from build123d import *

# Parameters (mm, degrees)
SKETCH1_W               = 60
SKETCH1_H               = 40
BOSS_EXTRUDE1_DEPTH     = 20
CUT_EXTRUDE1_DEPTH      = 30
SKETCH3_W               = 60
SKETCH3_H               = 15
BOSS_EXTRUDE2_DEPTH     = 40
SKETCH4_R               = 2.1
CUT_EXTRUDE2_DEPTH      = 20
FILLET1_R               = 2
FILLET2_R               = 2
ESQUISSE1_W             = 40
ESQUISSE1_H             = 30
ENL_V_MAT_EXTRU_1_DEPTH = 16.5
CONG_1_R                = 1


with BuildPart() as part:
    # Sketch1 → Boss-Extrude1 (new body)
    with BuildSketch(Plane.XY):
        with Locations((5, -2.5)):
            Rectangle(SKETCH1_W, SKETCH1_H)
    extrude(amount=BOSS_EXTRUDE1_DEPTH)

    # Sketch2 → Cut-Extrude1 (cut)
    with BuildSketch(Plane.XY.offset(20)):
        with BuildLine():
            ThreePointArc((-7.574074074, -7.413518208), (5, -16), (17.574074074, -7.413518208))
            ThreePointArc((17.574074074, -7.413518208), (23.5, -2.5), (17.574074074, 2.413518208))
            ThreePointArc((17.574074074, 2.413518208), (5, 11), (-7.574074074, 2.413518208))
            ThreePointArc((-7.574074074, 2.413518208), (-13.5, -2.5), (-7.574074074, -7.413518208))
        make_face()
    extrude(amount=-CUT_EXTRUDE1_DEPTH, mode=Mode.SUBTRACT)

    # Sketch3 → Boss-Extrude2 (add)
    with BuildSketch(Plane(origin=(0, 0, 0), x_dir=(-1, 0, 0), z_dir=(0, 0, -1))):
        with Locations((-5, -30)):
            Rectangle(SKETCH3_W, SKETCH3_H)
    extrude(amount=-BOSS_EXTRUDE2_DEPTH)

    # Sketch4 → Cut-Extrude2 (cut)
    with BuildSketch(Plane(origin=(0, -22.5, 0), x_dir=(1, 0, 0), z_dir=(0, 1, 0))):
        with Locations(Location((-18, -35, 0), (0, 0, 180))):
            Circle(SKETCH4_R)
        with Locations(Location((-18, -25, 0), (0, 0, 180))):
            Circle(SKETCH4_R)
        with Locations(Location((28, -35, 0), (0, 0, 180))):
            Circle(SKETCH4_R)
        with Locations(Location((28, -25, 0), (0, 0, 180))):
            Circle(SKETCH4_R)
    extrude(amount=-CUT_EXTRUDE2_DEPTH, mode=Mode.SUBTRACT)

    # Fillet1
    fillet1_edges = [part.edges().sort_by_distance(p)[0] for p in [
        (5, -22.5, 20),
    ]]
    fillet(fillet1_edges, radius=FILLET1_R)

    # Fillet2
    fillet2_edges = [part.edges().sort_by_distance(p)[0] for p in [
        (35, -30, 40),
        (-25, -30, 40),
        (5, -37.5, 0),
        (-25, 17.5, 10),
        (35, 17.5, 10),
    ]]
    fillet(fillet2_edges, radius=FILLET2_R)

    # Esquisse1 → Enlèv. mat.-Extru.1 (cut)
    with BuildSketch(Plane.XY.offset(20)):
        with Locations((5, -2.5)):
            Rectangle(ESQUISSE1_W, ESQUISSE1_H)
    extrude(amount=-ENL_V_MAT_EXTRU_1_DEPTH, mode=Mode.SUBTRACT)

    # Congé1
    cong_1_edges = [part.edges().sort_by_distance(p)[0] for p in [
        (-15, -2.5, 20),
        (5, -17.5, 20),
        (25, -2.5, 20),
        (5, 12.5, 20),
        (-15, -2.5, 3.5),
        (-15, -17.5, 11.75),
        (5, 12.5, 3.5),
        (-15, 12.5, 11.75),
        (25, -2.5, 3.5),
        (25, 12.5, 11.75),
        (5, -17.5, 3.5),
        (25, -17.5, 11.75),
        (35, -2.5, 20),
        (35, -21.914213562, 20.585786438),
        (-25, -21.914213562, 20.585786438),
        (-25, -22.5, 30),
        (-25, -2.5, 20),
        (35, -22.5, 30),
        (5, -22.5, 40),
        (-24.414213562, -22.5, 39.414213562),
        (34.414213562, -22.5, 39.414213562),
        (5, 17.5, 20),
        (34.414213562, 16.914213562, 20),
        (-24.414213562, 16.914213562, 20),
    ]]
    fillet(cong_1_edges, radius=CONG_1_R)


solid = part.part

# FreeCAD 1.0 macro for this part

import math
import FreeCAD as App
import Part
import Sketcher


def edges_at(feature, points):
    """Names of the edges that pass closest to the given points."""
    edges = feature.Shape.Edges
    near = lambda p: min(range(len(edges)), key=lambda i: edges[i].distToShape(Part.Vertex(*p))[0])
    return sorted({f"Edge{near(p) + 1}" for p in points})

doc = App.newDocument("Part")
body = doc.addObject("PartDesign::Body", "Body")

sketch1 = doc.addObject("Sketcher::SketchObject", "Sketch")
body.addObject(sketch1)
sketch1.AttachmentSupport = (doc.XY_Plane, [""])
sketch1.MapMode = "FlatFace"
sketch1.addGeometry([
    Part.LineSegment(App.Vector(-25, 18, 0), App.Vector(-25, -22, 0)),
    Part.LineSegment(App.Vector(-25, -22, 0), App.Vector(35, -22, 0)),
    Part.LineSegment(App.Vector(35, -22, 0), App.Vector(35, 18, 0)),
    Part.LineSegment(App.Vector(35, 18, 0), App.Vector(-25, 18, 0)),
], False)
sketch1.addConstraint([
    Sketcher.Constraint("Coincident", 0, 2, 1, 1),
    Sketcher.Constraint("Coincident", 1, 2, 2, 1),
    Sketcher.Constraint("Coincident", 2, 2, 3, 1),
    Sketcher.Constraint("Coincident", 3, 2, 0, 1),
    Sketcher.Constraint("Vertical", 0),
    Sketcher.Constraint("Horizontal", 1),
    Sketcher.Constraint("Vertical", 2),
    Sketcher.Constraint("Horizontal", 3),
    Sketcher.Constraint("DistanceX", 1, 1, 1, 2, 60.0),
    Sketcher.Constraint("DistanceY", 0, 2, 0, 1, 40.0),
    Sketcher.Constraint("DistanceX", 0, 2, -1, 1, 25.0),
    Sketcher.Constraint("DistanceY", 0, 2, -1, 1, 22.5),
])
pad1 = doc.addObject("PartDesign::Pad", "Pad")
body.addObject(pad1)
pad1.Profile = sketch1
pad1.Length = 20

sketch2 = doc.addObject("Sketcher::SketchObject", "Sketch001")
body.addObject(sketch2)
sketch2.AttachmentSupport = (doc.XY_Plane, [""])
sketch2.MapMode = "FlatFace"
sketch2.AttachmentOffset = App.Placement(App.Vector(0, 0, 20), App.Rotation())
sketch2.addGeometry([
    Part.ArcOfCircle(Part.Circle(App.Vector(5, -2, 0), App.Vector(0, 0, 1), 14), math.radians(-159), math.radians(-21)),
    Part.ArcOfCircle(Part.Circle(App.Vector(18, -2, 0), App.Vector(0, 0, 1), 5), math.radians(-101), math.radians(101)),
    Part.ArcOfCircle(Part.Circle(App.Vector(5, -2, 0), App.Vector(0, 0, 1), 14), math.radians(21), math.radians(159)),
    Part.ArcOfCircle(Part.Circle(App.Vector(-8, -2, 0), App.Vector(0, 0, 1), 5), math.radians(79), math.radians(281)),
], False)
sketch2.addConstraint([
    Sketcher.Constraint("Coincident", 0, 2, 1, 1),
    Sketcher.Constraint("Coincident", 1, 2, 2, 1),
    Sketcher.Constraint("Coincident", 2, 2, 3, 1),
    Sketcher.Constraint("Coincident", 3, 2, 0, 1),
    Sketcher.Constraint("Coincident", 2, 3, 0, 3),
    Sketcher.Constraint("Equal", 0, 2),
    Sketcher.Constraint("Equal", 1, 3),
    Sketcher.Constraint("Horizontal", 0, 3, 1, 3),
    Sketcher.Constraint("Horizontal", 2, 3, 3, 3),
    Sketcher.Constraint("Horizontal", 1, 2, 2, 2),
    Sketcher.Constraint("Radius", 1, 5.0),
    Sketcher.Constraint("Radius", 0, 13.5),
    Sketcher.Constraint("DistanceX", -1, 1, 0, 3, 5.0),
    Sketcher.Constraint("DistanceX", 3, 3, 1, 3, 27.0),
    Sketcher.Constraint("DistanceY", 0, 3, -1, 1, 2.5),
])
pocket1 = doc.addObject("PartDesign::Pocket", "Pocket")
body.addObject(pocket1)
pocket1.Profile = sketch2
pocket1.Length = 30

sketch3 = doc.addObject("Sketcher::SketchObject", "Sketch002")
body.addObject(sketch3)
sketch3.AttachmentSupport = (doc.XY_Plane, [""])
sketch3.MapMode = "FlatFace"
sketch3.addGeometry([
    Part.LineSegment(App.Vector(35, -22, 0), App.Vector(35, -38, 0)),
    Part.LineSegment(App.Vector(35, -38, 0), App.Vector(-25, -38, 0)),
    Part.LineSegment(App.Vector(-25, -38, 0), App.Vector(-25, -22, 0)),
    Part.LineSegment(App.Vector(-25, -22, 0), App.Vector(35, -22, 0)),
], False)
sketch3.addConstraint([
    Sketcher.Constraint("Coincident", 0, 2, 1, 1),
    Sketcher.Constraint("Coincident", 1, 2, 2, 1),
    Sketcher.Constraint("Coincident", 2, 2, 3, 1),
    Sketcher.Constraint("Coincident", 3, 2, 0, 1),
    Sketcher.Constraint("Vertical", 0),
    Sketcher.Constraint("Horizontal", 1),
    Sketcher.Constraint("Vertical", 2),
    Sketcher.Constraint("Horizontal", 3),
    Sketcher.Constraint("DistanceX", 1, 2, 1, 1, 60.0),
    Sketcher.Constraint("DistanceY", 0, 2, 0, 1, 15.0),
    Sketcher.Constraint("DistanceX", -1, 1, 0, 2, 35.0),
    Sketcher.Constraint("DistanceY", 0, 2, -1, 1, 37.5),
])
pad2 = doc.addObject("PartDesign::Pad", "Pad001")
body.addObject(pad2)
pad2.Profile = sketch3
pad2.Length = 40

sketch4 = doc.addObject("Sketcher::SketchObject", "Sketch003")
body.addObject(sketch4)
sketch4.AttachmentSupport = (doc.XZ_Plane, [""])
sketch4.MapMode = "FlatFace"
sketch4.AttachmentOffset = App.Placement(App.Vector(0, 0, 22.5), App.Rotation())
sketch4.addGeometry([
    Part.Circle(App.Vector(-18, 35, 0), App.Vector(0, 0, 1), 2.1),
    Part.Circle(App.Vector(-18, 25, 0), App.Vector(0, 0, 1), 2.1),
    Part.Circle(App.Vector(28, 35, 0), App.Vector(0, 0, 1), 2.1),
    Part.Circle(App.Vector(28, 25, 0), App.Vector(0, 0, 1), 2.1),
], False)
sketch4.addConstraint([
    Sketcher.Constraint("Equal", 0, 1),
    Sketcher.Constraint("Equal", 1, 2),
    Sketcher.Constraint("Equal", 2, 3),
    Sketcher.Constraint("Horizontal", 0, 3, 2, 3),
    Sketcher.Constraint("Horizontal", 1, 3, 3, 3),
    Sketcher.Constraint("Vertical", 0, 3, 1, 3),
    Sketcher.Constraint("Vertical", 2, 3, 3, 3),
    Sketcher.Constraint("Diameter", 0, 4.2),
    Sketcher.Constraint("DistanceX", 0, 3, -1, 1, 18.0),
    Sketcher.Constraint("DistanceY", -1, 1, 0, 3, 35.0),
    Sketcher.Constraint("DistanceY", -1, 1, 1, 3, 25.0),
    Sketcher.Constraint("DistanceX", -1, 1, 2, 3, 28.0),
])
pocket2 = doc.addObject("PartDesign::Pocket", "Pocket001")
body.addObject(pocket2)
pocket2.Profile = sketch4
pocket2.Length = 20
pocket2.Reversed = True
doc.recompute()

fillet = doc.addObject("PartDesign::Fillet", "Fillet")
body.addObject(fillet)
fillet.Base = (pocket2, edges_at(pocket2, [(5, -22.5, 20)]))
fillet.Radius = 2
doc.recompute()

fillet2 = doc.addObject("PartDesign::Fillet", "Fillet001")
body.addObject(fillet2)
fillet2.Base = (fillet, edges_at(fillet, [
    (35, -30, 40),
    (-25, -30, 40),
    (5, -37.5, 0),
    (-25, 17.5, 10),
    (35, 17.5, 10),
]))
fillet2.Radius = 2

sketch5 = doc.addObject("Sketcher::SketchObject", "Sketch004")
body.addObject(sketch5)
sketch5.AttachmentSupport = (doc.XY_Plane, [""])
sketch5.MapMode = "FlatFace"
sketch5.AttachmentOffset = App.Placement(App.Vector(0, 0, 20), App.Rotation())
sketch5.addGeometry([
    Part.LineSegment(App.Vector(-15, 12, 0), App.Vector(-15, -18, 0)),
    Part.LineSegment(App.Vector(-15, -18, 0), App.Vector(25, -18, 0)),
    Part.LineSegment(App.Vector(25, -18, 0), App.Vector(25, 12, 0)),
    Part.LineSegment(App.Vector(25, 12, 0), App.Vector(-15, 12, 0)),
], False)
sketch5.addConstraint([
    Sketcher.Constraint("Coincident", 0, 2, 1, 1),
    Sketcher.Constraint("Coincident", 1, 2, 2, 1),
    Sketcher.Constraint("Coincident", 2, 2, 3, 1),
    Sketcher.Constraint("Coincident", 3, 2, 0, 1),
    Sketcher.Constraint("Vertical", 0),
    Sketcher.Constraint("Horizontal", 1),
    Sketcher.Constraint("Vertical", 2),
    Sketcher.Constraint("Horizontal", 3),
    Sketcher.Constraint("DistanceX", 1, 1, 1, 2, 40.0),
    Sketcher.Constraint("DistanceY", 0, 2, 0, 1, 30.0),
    Sketcher.Constraint("DistanceX", 0, 2, -1, 1, 15.0),
    Sketcher.Constraint("DistanceY", 0, 2, -1, 1, 17.5),
])
pocket3 = doc.addObject("PartDesign::Pocket", "Pocket002")
body.addObject(pocket3)
pocket3.Profile = sketch5
pocket3.Length = 16.5
doc.recompute()

fillet3 = doc.addObject("PartDesign::Fillet", "Fillet002")
body.addObject(fillet3)
fillet3.Base = (pocket3, edges_at(pocket3, [
    (-15, -2.5, 20),
    (5, -17.5, 20),
    (25, -2.5, 20),
    (5, 12.5, 20),
    (-15, -2.5, 3.5),
    (-15, -17.5, 11.75),
    (5, 12.5, 3.5),
    (-15, 12.5, 11.75),
    (25, -2.5, 3.5),
    (25, 12.5, 11.75),
    (5, -17.5, 3.5),
    (25, -17.5, 11.75),
    (35, -2.5, 20),
    (35, -21.914, 20.586),
    (-25, -21.914, 20.586),
    (-25, -22.5, 30),
    (-25, -2.5, 20),
    (35, -22.5, 30),
    (5, -22.5, 40),
    (-24.414, -22.5, 39.414),
    (34.414, -22.5, 39.414),
    (5, 17.5, 20),
    (34.414, 16.914, 20),
    (-24.414, 16.914, 20),
]))
fillet3.Radius = 1

doc.recompute()
